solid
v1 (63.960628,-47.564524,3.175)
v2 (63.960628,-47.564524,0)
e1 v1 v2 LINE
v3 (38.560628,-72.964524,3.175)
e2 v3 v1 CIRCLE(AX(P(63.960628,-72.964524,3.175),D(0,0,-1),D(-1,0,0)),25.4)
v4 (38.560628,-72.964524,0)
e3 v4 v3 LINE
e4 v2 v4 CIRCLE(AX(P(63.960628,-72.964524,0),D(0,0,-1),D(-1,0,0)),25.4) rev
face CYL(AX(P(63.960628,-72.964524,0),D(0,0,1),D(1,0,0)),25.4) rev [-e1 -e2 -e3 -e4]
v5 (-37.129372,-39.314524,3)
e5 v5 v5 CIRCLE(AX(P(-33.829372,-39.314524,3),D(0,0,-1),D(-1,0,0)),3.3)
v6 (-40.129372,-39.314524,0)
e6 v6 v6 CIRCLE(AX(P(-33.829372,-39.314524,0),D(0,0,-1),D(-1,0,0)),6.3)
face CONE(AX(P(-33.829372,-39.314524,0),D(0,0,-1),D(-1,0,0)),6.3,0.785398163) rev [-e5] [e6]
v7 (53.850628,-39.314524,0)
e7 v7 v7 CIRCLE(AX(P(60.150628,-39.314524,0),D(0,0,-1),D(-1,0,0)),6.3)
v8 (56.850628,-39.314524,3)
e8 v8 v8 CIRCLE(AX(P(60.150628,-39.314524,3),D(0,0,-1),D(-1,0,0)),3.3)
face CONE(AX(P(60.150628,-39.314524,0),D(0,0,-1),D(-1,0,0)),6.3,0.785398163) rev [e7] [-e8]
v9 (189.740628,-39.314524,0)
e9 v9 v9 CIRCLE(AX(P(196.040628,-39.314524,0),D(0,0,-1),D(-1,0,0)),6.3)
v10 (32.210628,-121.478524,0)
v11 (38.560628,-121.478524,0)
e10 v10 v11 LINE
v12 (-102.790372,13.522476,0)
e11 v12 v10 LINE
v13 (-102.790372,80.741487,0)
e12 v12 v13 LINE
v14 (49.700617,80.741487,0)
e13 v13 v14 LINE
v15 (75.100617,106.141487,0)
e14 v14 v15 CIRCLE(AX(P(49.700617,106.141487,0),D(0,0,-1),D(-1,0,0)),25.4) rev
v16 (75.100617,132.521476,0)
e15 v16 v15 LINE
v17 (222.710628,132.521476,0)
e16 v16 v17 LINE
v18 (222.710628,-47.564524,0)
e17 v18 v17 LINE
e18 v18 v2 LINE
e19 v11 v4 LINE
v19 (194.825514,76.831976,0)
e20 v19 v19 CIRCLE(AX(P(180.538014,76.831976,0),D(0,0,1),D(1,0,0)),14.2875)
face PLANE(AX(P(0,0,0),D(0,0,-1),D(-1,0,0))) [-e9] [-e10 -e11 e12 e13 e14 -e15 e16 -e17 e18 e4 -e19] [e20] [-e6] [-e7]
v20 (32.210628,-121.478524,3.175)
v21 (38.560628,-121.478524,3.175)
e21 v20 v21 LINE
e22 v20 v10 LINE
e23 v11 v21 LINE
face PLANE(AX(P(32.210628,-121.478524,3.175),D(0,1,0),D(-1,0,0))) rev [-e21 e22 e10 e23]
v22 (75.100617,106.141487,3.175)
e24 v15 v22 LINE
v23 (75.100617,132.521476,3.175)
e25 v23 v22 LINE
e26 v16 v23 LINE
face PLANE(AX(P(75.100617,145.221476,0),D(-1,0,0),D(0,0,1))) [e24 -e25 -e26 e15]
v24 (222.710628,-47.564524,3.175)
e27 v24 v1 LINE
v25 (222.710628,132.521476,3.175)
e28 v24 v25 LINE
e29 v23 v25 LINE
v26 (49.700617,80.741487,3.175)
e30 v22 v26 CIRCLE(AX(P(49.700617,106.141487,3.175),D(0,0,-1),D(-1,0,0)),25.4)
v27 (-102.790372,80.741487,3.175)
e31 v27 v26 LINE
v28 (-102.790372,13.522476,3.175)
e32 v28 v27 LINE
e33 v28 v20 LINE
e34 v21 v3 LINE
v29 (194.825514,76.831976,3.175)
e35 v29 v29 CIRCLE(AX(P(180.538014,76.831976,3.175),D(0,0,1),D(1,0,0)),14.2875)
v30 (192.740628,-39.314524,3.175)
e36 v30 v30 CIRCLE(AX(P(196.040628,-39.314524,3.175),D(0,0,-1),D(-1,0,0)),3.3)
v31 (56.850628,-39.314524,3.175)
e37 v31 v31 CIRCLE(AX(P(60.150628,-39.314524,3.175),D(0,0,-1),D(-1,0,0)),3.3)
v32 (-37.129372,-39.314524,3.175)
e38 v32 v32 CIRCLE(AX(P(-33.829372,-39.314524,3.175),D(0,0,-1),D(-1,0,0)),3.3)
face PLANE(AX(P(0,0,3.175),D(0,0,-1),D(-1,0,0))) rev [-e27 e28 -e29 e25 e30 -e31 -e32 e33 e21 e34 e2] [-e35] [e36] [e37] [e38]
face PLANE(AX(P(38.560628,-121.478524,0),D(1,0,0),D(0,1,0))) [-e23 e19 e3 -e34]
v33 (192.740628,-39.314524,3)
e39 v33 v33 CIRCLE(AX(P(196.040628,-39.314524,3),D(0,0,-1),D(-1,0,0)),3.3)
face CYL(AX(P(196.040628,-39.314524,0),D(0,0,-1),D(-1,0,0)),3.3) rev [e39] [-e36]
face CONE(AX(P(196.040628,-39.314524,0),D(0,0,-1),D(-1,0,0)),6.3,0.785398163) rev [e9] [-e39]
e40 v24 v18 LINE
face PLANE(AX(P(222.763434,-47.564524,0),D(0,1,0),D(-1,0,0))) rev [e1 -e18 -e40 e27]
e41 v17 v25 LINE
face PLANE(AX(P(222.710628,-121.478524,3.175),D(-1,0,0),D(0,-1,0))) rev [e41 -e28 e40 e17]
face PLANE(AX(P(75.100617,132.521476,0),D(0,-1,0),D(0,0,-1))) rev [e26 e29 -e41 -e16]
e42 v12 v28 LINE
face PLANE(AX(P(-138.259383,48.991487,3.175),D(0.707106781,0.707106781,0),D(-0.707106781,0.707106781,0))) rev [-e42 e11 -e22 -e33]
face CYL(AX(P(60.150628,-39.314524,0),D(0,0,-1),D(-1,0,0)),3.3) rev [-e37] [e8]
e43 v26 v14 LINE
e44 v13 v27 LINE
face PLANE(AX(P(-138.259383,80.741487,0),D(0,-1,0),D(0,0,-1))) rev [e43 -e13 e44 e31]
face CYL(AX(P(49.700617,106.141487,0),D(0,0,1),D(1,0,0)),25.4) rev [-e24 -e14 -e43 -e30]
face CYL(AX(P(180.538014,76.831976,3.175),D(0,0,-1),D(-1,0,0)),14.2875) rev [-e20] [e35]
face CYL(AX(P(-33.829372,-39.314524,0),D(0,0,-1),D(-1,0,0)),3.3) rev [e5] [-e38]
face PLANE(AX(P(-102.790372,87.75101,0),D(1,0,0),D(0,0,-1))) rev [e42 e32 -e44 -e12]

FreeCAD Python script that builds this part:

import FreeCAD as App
import Part
import Sketcher
from FreeCAD import Vector
Q = App.Units.Quantity


def edges_at(feature, points):
    """Names of the edges that pass closest to the given points."""
    edges = feature.Shape.Edges
    near = lambda p: min(range(len(edges)), key=lambda i: edges[i].distToShape(Part.Vertex(*p))[0])
    return sorted({f"Edge{near(p) + 1}" for p in points})


def add_polygon(sketch, points):
    """Adds a closed chain of lines whose ends are joined by coincident constraints."""
    first, n = sketch.GeometryCount, len(points)
    for a, b in zip(points, points[1:] + points[:1]):
        sketch.addGeometry(Part.LineSegment(App.Vector(*a, 0), App.Vector(*b, 0)), False)
    for i in range(n):
        sketch.addConstraint(Sketcher.Constraint("Coincident", first + i, 2, first + (i + 1) % n, 1))

doc = App.newDocument("Part")
body = doc.addObject("PartDesign::Body", "Body")

# Sketch on XY plane
sketch1 = doc.addObject("Sketcher::SketchObject", "Sketch")
body.addObject(sketch1)
sketch1.AttachmentSupport = (doc.XY_Plane, [""])
sketch1.MapMode = "FlatFace"
add_polygon(sketch1, [(-138, 49), (32, -121), (223, -121), (223, 145), (-138, 145)])  # lines 0-4
sketch1.addGeometry(Part.Circle(Vector(181, 77, 0), Vector(0, 0, 1), 14), False)  # 5
sketch1.addConstraint([
    Sketcher.Constraint("Horizontal", 1),
    Sketcher.Constraint("Vertical", 2),
    Sketcher.Constraint("Horizontal", 3),
    Sketcher.Constraint("Vertical", 4),
    Sketcher.Constraint("Diameter", 5, Q("1.125 in")),
    Sketcher.Constraint("DistanceX", 1, 1, 1, 2, Q("7.5 in")),
    Sketcher.Constraint("DistanceY", 2, 1, 2, 2, Q("10.5 in")),
    Sketcher.Constraint("Angle", 0, Q("-45 deg")),
    Sketcher.Constraint("DistanceY", 0, 2, 5, 3, Q("7.8075 in")),
    Sketcher.Constraint("Distance", 0, Q("241.081002 mm")),
    Sketcher.Constraint("DistanceX", -1, 1, 5, 3, Q("180.538014 mm")),
    Sketcher.Constraint("DistanceY", -1, 1, 5, 3, Q("76.831976 mm")),
    Sketcher.Constraint("DistanceX", -1, 1, 0, 2, Q("32.210628 mm")),
])
pad1 = doc.addObject("PartDesign::Pad", "Pad")
body.addObject(pad1)
pad1.Profile = sketch1
pad1.Length = Q("0.125 in")

# Sketch on XY plane
sketch2 = doc.addObject("Sketcher::SketchObject", "Sketch001")
body.addObject(sketch2)
sketch2.AttachmentSupport = (doc.XY_Plane, [""])
sketch2.MapMode = "FlatFace"
sketch2.AttachmentOffset = App.Placement(Vector(0, 0, 0.125 * 25.4), App.Rotation())
add_polygon(sketch2, [(39, -48), (39, -121), (223, -121), (223, -48)])  # lines 0-3
sketch2.addConstraint([
    Sketcher.Constraint("Vertical", 0),
    Sketcher.Constraint("Horizontal", 1),
    Sketcher.Constraint("Vertical", 2),
    Sketcher.Constraint("Horizontal", 3),
    Sketcher.Constraint("DistanceY", 0, 2, 0, 1, Q("2.91 in")),
    Sketcher.Constraint("DistanceX", 1, 1, 1, 2, Q("184.202806 mm")),
    Sketcher.Constraint("DistanceX", -1, 1, 0, 2, Q("38.560628 mm")),
    Sketcher.Constraint("DistanceY", 0, 2, -1, 1, Q("121.478524 mm")),
])
pocket1 = doc.addObject("PartDesign::Pocket", "Pocket")
body.addObject(pocket1)
pocket1.Profile = sketch2
pocket1.Type = "ThroughAll"
doc.recompute()

fillet = doc.addObject("PartDesign::Fillet", "Fillet")
body.addObject(fillet)
fillet.Base = (pocket1, edges_at(pocket1, [(38.561, -47.565, 1.587)]))
fillet.Radius = Q("1 in")

# Sketch on XY plane
sketch3 = doc.addObject("Sketcher::SketchObject", "Sketch002")
body.addObject(sketch3)
sketch3.AttachmentSupport = (doc.XY_Plane, [""])
sketch3.MapMode = "FlatFace"
sketch3.AttachmentOffset = App.Placement(Vector(0, 0, 0.125 * 25.4), App.Rotation())
add_polygon(sketch3, [(-138, 145), (-138, 81), (75, 81), (75, 145)])  # lines 0-3
sketch3.addConstraint([
    Sketcher.Constraint("Vertical", 0),
    Sketcher.Constraint("Horizontal", 1),
    Sketcher.Constraint("Vertical", 2),
    Sketcher.Constraint("Horizontal", 3),
    Sketcher.Constraint("DistanceX", 1, 1, 1, 2, Q("8.4 in")),
    Sketcher.Constraint("DistanceY", 0, 2, 0, 1, Q("64.479989 mm")),
    Sketcher.Constraint("DistanceX", 0, 2, -1, 1, Q("138.259383 mm")),
    Sketcher.Constraint("DistanceY", -1, 1, 0, 2, Q("80.741487 mm")),
])
pocket2 = doc.addObject("PartDesign::Pocket", "Pocket001")
body.addObject(pocket2)
pocket2.Profile = sketch3
pocket2.Type = "ThroughAll"
doc.recompute()

fillet2 = doc.addObject("PartDesign::Fillet", "Fillet001")
body.addObject(fillet2)
fillet2.Base = (pocket2, edges_at(pocket2, [(-138.259, 80.741, 1.587), (75.101, 80.741, 1.587)]))
fillet2.Radius = Q("1 in")

# Sketch on XY plane
sketch4 = doc.addObject("Sketcher::SketchObject", "Sketch003")
body.addObject(sketch4)
sketch4.AttachmentSupport = (doc.XY_Plane, [""])
sketch4.MapMode = "FlatFace"
sketch4.AttachmentOffset = App.Placement(Vector(0, 0, 0.125 * 25.4), App.Rotation())
add_polygon(sketch4, [(75, 145), (75, 133), (223, 133), (223, 145)])  # lines 0-3
sketch4.addConstraint([
    Sketcher.Constraint("Vertical", 0),
    Sketcher.Constraint("Horizontal", 1),
    Sketcher.Constraint("Vertical", 2),
    Sketcher.Constraint("Horizontal", 3),
    Sketcher.Constraint("DistanceY", 0, 2, 0, 1, Q("0.5 in")),
    Sketcher.Constraint("DistanceX", 1, 1, 1, 2, Q("147.610011 mm")),
    Sketcher.Constraint("DistanceX", -1, 1, 0, 2, Q("75.100617 mm")),
    Sketcher.Constraint("DistanceY", -1, 1, 0, 2, Q("132.521476 mm")),
])
pocket3 = doc.addObject("PartDesign::Pocket", "Pocket002")
body.addObject(pocket3)
pocket3.Profile = sketch4
pocket3.Type = "ThroughAll"

# Sketch on YZ plane
sketch5 = doc.addObject("Sketcher::SketchObject", "Sketch004")
body.addObject(sketch5)
sketch5.AttachmentSupport = (doc.YZ_Plane, [""])
sketch5.MapMode = "FlatFace"
sketch5.AttachmentOffset = App.Placement(Vector(0, 0, 196.040628), App.Rotation())
add_polygon(sketch5, [(-39.31, 3.17), (-39.31, 0), (-33.01, 0), (-36.01, 3), (-36.01, 3.17)])  # lines 0-4
sketch5.addGeometry(Part.LineSegment(Vector(-39.31, 0, 0), Vector(-39.31, 3.17, 0)), True)  # axis
sketch5.addConstraint([
    Sketcher.Constraint("Vertical", 0),
    Sketcher.Constraint("Horizontal", 1),
    Sketcher.Constraint("Vertical", 3),
    Sketcher.Constraint("Horizontal", 4),
    Sketcher.Constraint("Vertical", 5),
    Sketcher.Constraint("Coincident", 5, 1, 0, 2),
    Sketcher.Constraint("PointOnObject", 0, 2, -1),
    Sketcher.Constraint("Horizontal", 3, 2, 5, 2),
    Sketcher.Constraint("Angle", 2, Q("135 deg")),
    Sketcher.Constraint("DistanceY", 0, 2, 0, 1, Q("0.125 in")),
    Sketcher.Constraint("DistanceX", 1, 1, 1, 2, Q("6.3 mm")),
    Sketcher.Constraint("DistanceX", 4, 2, 4, 1, Q("3.3 mm")),
    Sketcher.Constraint("DistanceX", 0, 2, -1, 1, Q("39.314524 mm")),
])
groove = doc.addObject("PartDesign::Groove", "Groove")
body.addObject(groove)
groove.Profile = sketch5
groove.ReferenceAxis = (sketch5, ["Axis0"])
groove.Angle = 360
doc.recompute()

linearpattern = doc.addObject("PartDesign::LinearPattern", "LinearPattern")
body.addObject(linearpattern)
linearpattern.Originals = [groove]
linearpattern.Direction = (doc.X_Axis, [""])
linearpattern.Mode = "offset"
linearpattern.Offset = Q("5.35 in")
linearpattern.Occurrences = 2
linearpattern.Reversed = True
body.Tip = linearpattern
doc.recompute()

linearpattern2 = doc.addObject("PartDesign::LinearPattern", "LinearPattern001")
body.addObject(linearpattern2)
linearpattern2.Originals = [groove]
linearpattern2.Direction = (doc.X_Axis, [""])
linearpattern2.Mode = "offset"
linearpattern2.Offset = Q("9.05 in")
linearpattern2.Occurrences = 2
linearpattern2.Reversed = True
body.Tip = linearpattern2

# Sketch on XY plane
sketch6 = doc.addObject("Sketcher::SketchObject", "Sketch005")
body.addObject(sketch6)
sketch6.AttachmentSupport = (doc.XY_Plane, [""])
sketch6.MapMode = "FlatFace"
sketch6.AttachmentOffset = App.Placement(Vector(0, 0, 0.125 * 25.4), App.Rotation())
add_polygon(sketch6, [(-161, 88), (-161, 14), (-103, 14), (-103, 88)])  # lines 0-3
sketch6.addConstraint([
    Sketcher.Constraint("Vertical", 0),
    Sketcher.Constraint("Horizontal", 1),
    Sketcher.Constraint("Vertical", 2),
    Sketcher.Constraint("Horizontal", 3),
    Sketcher.Constraint("DistanceX", 1, 1, 1, 2, Q("57.86388 mm")),
    Sketcher.Constraint("DistanceY", 0, 2, 0, 1, Q("74.228534 mm")),
    Sketcher.Constraint("DistanceY", -1, 1, 2, 2, Q("87.75101 mm")),
    Sketcher.Constraint("DistanceX", 0, 2, -1, 1, Q("160.654252 mm")),
])
pocket4 = doc.addObject("PartDesign::Pocket", "Pocket003")
body.addObject(pocket4)
pocket4.Profile = sketch6
pocket4.Type = "ThroughAll"

doc.recompute()
